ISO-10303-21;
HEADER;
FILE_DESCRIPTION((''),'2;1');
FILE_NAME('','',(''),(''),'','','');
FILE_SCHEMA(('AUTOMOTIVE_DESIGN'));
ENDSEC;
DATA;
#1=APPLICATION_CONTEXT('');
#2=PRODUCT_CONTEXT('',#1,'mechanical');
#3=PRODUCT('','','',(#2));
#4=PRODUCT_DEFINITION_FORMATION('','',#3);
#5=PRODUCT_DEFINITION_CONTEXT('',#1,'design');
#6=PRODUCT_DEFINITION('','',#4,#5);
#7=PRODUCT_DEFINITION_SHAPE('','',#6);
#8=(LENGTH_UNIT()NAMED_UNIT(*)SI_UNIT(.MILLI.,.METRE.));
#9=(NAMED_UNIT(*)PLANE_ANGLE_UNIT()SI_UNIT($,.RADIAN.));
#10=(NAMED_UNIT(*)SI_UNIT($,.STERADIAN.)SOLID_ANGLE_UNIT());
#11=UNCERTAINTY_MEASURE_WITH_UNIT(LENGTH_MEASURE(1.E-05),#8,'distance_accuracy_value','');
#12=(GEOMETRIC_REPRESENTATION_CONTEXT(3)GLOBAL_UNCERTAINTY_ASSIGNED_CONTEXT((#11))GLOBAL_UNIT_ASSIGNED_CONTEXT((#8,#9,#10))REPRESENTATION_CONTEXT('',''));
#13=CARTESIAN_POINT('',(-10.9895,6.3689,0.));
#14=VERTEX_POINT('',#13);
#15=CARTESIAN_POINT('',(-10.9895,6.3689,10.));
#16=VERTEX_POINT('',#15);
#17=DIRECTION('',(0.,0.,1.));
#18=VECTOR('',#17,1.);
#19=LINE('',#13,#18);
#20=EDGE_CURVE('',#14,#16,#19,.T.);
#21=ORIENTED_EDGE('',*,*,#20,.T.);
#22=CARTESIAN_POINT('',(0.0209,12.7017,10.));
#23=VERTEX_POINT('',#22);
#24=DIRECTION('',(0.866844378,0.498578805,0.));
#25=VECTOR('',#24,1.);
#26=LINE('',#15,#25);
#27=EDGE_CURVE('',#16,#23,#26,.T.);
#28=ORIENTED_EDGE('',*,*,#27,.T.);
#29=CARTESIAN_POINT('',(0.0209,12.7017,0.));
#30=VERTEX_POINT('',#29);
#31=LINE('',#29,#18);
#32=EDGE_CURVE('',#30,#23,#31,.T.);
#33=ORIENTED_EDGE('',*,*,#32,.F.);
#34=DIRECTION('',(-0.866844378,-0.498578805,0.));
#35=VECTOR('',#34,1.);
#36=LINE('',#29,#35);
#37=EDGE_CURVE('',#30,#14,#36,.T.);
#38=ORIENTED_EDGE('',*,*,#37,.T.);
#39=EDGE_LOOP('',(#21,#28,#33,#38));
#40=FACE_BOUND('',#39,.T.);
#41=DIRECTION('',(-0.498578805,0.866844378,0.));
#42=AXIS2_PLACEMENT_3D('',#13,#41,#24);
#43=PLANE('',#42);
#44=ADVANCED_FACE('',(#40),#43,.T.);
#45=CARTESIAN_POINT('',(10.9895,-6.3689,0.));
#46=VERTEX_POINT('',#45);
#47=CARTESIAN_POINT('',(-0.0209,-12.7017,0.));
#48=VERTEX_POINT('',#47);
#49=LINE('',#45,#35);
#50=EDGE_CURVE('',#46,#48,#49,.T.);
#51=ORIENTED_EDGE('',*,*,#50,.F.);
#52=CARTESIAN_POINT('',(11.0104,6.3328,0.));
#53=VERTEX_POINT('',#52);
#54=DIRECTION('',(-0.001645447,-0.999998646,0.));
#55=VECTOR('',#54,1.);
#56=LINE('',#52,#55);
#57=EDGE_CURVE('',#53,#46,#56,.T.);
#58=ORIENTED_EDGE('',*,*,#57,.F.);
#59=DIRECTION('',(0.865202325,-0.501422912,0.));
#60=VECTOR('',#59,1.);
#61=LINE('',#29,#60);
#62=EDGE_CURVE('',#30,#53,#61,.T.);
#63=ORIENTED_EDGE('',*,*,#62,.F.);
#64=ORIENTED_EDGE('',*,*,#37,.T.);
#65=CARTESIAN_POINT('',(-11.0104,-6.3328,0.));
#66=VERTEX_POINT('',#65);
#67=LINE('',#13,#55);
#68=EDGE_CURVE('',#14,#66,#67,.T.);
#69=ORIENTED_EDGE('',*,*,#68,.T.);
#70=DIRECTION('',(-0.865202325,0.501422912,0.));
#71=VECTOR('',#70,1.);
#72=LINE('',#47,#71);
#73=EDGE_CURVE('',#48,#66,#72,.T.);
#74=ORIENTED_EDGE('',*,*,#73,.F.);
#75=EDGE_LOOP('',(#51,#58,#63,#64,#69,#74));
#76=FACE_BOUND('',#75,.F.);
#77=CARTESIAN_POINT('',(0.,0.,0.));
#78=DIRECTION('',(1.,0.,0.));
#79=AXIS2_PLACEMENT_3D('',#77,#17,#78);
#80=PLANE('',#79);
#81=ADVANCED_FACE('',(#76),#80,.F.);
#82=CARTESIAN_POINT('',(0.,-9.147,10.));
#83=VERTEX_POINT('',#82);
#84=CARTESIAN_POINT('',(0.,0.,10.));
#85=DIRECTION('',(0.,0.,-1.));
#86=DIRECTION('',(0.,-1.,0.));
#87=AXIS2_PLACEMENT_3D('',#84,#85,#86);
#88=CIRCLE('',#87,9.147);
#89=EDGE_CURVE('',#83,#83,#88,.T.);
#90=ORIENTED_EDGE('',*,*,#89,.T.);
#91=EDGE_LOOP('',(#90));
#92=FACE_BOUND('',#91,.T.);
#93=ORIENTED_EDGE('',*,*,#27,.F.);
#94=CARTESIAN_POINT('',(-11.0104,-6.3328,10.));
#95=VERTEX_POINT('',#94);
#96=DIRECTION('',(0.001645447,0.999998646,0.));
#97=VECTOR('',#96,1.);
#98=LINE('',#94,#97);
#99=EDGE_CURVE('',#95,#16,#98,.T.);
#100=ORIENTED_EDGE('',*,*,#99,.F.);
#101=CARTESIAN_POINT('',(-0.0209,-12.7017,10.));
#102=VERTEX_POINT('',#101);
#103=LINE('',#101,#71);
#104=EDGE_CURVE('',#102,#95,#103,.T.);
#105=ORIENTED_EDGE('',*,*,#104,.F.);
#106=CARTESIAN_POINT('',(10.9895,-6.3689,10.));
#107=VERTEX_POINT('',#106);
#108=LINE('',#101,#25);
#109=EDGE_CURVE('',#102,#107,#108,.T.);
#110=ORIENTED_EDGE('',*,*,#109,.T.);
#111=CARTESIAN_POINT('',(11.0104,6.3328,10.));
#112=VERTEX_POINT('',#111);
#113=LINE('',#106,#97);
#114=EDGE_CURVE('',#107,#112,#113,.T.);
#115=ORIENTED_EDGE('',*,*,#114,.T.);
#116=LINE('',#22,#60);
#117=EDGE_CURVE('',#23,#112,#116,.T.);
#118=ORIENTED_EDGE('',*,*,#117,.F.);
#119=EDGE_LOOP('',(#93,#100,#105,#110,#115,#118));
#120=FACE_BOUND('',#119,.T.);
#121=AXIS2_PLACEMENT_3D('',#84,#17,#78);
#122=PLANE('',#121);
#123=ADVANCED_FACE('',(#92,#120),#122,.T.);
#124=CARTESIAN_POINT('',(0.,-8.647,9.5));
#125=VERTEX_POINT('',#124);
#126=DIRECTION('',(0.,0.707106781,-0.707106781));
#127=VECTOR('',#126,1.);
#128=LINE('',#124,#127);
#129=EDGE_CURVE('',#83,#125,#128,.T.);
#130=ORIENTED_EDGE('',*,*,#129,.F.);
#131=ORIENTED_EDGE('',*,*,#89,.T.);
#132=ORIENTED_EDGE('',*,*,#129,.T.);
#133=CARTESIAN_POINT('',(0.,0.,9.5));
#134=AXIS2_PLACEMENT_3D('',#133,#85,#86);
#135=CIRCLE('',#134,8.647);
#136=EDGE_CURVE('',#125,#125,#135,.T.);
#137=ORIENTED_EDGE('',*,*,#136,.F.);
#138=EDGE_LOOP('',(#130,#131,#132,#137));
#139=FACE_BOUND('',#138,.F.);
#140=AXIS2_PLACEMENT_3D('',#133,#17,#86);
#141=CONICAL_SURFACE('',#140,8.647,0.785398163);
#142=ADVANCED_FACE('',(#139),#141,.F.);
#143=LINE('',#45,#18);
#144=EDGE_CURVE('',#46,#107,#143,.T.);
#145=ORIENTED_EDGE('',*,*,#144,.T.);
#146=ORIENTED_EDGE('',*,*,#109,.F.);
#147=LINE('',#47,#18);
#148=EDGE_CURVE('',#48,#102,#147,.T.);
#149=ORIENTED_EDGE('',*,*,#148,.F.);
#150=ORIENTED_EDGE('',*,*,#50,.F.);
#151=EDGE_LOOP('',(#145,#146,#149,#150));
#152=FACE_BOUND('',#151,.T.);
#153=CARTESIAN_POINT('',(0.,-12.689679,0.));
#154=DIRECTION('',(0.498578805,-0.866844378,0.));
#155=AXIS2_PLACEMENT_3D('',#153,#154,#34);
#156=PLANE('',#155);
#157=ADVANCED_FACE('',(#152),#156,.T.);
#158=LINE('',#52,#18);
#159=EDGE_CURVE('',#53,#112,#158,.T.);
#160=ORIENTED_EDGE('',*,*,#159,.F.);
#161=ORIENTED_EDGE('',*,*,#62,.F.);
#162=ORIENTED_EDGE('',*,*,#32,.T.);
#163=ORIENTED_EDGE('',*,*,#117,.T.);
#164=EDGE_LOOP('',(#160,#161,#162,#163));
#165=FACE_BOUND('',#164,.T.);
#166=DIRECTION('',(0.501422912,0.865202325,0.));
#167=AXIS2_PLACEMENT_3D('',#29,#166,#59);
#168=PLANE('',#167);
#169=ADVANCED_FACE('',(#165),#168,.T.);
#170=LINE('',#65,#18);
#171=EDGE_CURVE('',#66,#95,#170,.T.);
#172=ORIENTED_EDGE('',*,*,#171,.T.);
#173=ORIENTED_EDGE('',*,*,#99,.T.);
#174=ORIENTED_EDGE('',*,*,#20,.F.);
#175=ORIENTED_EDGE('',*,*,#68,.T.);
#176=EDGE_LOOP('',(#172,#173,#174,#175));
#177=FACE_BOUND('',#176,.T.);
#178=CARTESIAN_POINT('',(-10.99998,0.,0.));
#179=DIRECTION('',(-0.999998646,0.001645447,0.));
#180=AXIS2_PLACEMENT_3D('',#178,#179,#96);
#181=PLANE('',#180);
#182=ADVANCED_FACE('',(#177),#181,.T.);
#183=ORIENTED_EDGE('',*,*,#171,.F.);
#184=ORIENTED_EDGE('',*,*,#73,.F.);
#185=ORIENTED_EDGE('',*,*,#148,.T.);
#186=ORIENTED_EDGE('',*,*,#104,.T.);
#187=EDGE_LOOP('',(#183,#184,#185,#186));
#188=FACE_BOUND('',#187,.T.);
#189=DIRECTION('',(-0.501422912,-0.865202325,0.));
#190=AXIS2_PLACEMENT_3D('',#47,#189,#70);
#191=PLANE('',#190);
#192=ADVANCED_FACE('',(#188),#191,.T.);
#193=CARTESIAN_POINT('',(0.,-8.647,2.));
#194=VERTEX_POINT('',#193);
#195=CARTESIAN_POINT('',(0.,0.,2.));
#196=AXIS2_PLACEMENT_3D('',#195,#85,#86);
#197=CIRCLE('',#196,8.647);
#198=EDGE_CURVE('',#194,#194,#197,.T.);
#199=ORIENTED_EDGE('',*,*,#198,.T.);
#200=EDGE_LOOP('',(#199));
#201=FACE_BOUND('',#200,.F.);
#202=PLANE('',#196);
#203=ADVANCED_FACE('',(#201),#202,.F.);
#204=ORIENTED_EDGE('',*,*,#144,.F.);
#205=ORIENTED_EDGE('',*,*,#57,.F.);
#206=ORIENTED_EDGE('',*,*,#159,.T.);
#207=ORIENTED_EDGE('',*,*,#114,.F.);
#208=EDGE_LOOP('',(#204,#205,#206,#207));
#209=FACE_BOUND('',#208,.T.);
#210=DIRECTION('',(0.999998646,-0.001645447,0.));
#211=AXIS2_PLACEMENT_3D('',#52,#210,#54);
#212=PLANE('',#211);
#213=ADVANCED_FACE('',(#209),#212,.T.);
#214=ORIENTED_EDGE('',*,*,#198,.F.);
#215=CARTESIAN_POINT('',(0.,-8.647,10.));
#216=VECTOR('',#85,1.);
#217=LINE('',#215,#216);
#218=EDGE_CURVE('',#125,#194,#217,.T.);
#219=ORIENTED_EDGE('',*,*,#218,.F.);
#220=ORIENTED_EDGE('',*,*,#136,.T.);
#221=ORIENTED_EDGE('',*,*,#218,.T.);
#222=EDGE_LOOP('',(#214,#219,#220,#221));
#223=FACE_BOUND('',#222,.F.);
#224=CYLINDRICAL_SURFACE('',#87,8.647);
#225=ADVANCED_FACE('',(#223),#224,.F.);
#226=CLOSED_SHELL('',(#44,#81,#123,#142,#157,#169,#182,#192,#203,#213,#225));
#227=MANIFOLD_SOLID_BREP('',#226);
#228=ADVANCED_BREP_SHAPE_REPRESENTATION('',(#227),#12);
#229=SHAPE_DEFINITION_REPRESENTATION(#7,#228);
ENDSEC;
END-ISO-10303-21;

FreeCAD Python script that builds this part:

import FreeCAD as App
import Part
import Sketcher
from FreeCAD import Vector
Q = App.Units.Quantity


def edges_at(feature, points):
    """Names of the edges that pass closest to the given points."""
    edges = feature.Shape.Edges
    near = lambda p: min(range(len(edges)), key=lambda i: edges[i].distToShape(Part.Vertex(*p))[0])
    return sorted({f"Edge{near(p) + 1}" for p in points})

doc = App.newDocument("Part")
params = doc.addObject("Spreadsheet::Sheet", "Params")
for row, (alias, value) in enumerate([
    ("pad1_length", "10 mm"),
    ("hole_diameter", "17.294 mm"),
    ("hole_depth", "8 mm"),
    ("chamfer_size", "0.5 mm"),
], start=1):
    params.set(f"A{row}", alias)
    params.set(f"B{row}", "=" + value)
    params.setAlias(f"B{row}", alias)

body = doc.addObject("PartDesign::Body", "Body")

# Sketch on XY plane
sketch1 = doc.addObject("Sketcher::SketchObject", "Sketch")
body.addObject(sketch1)
sketch1.AttachmentSupport = (doc.XY_Plane, [""])
sketch1.MapMode = "FlatFace"
sketch1.addGeometry(Part.LineSegment(Vector(-11, 6, 0), Vector(-11, -6, 0)), False)
sketch1.addGeometry(Part.LineSegment(Vector(-11, -6, 0), Vector(0, -13, 0)), False)
sketch1.addGeometry(Part.LineSegment(Vector(0, -13, 0), Vector(11, -6, 0)), False)
sketch1.addGeometry(Part.LineSegment(Vector(11, -6, 0), Vector(11, 6, 0)), False)
sketch1.addGeometry(Part.LineSegment(Vector(11, 6, 0), Vector(0, 13, 0)), False)
sketch1.addGeometry(Part.LineSegment(Vector(0, 13, 0), Vector(-11, 6, 0)), False)
sketch1.addConstraint(Sketcher.Constraint("Coincident", 0, 2, 1, 1))
sketch1.addConstraint(Sketcher.Constraint("Coincident", 1, 2, 2, 1))
sketch1.addConstraint(Sketcher.Constraint("Coincident", 2, 2, 3, 1))
sketch1.addConstraint(Sketcher.Constraint("Coincident", 3, 2, 4, 1))
sketch1.addConstraint(Sketcher.Constraint("Coincident", 4, 2, 5, 1))
sketch1.addConstraint(Sketcher.Constraint("Coincident", 5, 2, 0, 1))
sketch1.addConstraint(Sketcher.Constraint("Symmetric", 0, 2, 3, 2, -1, 1))
sketch1.addConstraint(Sketcher.Constraint("Symmetric", 1, 2, 4, 2, -1, 1))
sketch1.addConstraint(Sketcher.Constraint("Symmetric", 2, 2, 5, 2, -1, 1))
sketch1.addConstraint(Sketcher.Constraint("Equal", 0, 1))
sketch1.addConstraint(Sketcher.Constraint("Equal", 1, 2))
sketch1.addConstraint(Sketcher.Constraint("DistanceX", 0, 2, 2, 2, Q("22 mm")))
sketch1.addConstraint(Sketcher.Constraint("DistanceX", 1, 2, -1, 1, Q("0.021 mm")))
sketch1.addConstraint(Sketcher.Constraint("DistanceY", 2, 2, -1, 1, Q("6.369 mm")))
sketch1.addConstraint(Sketcher.Constraint("DistanceY", 1, 2, 0, 2, Q("6.369 mm")))
pad1 = doc.addObject("PartDesign::Pad", "Pad")
body.addObject(pad1)
pad1.Profile = sketch1
pad1.setExpression("Length", "Params.pad1_length")

# Sketch on XY plane
sketch2 = doc.addObject("Sketcher::SketchObject", "Sketch001")
body.addObject(sketch2)
sketch2.AttachmentSupport = (doc.XY_Plane, [""])
sketch2.MapMode = "FlatFace"
sketch2.AttachmentOffset = App.Placement(Vector(0, 0, 10), App.Rotation())
sketch2.addGeometry(Part.Circle(Vector(0, 0, 0), Vector(0, 0, 1), 9), False)
sketch2.addConstraint(Sketcher.Constraint("Coincident", 0, 3, -1, 1))
sketch2.addConstraint(Sketcher.Constraint("Diameter", 0, Q("17.294 mm")))
doc.recompute()
hole = doc.addObject("PartDesign::Hole", "Hole")
body.addObject(hole)
hole.Profile = sketch2
hole.ThreadType = "None"
hole.setExpression("Diameter", "Params.hole_diameter")
hole.DepthType = "Dimension"
hole.setExpression("Depth", "Params.hole_depth")
hole.DrillPoint = "Flat"
doc.recompute()

chamfer = doc.addObject("PartDesign::Chamfer", "Chamfer")
body.addObject(chamfer)
chamfer.Base = (hole, edges_at(hole, [(0, 8.647, 10)]))
chamfer.setExpression("Size", "Params.chamfer_size")

doc.recompute()
